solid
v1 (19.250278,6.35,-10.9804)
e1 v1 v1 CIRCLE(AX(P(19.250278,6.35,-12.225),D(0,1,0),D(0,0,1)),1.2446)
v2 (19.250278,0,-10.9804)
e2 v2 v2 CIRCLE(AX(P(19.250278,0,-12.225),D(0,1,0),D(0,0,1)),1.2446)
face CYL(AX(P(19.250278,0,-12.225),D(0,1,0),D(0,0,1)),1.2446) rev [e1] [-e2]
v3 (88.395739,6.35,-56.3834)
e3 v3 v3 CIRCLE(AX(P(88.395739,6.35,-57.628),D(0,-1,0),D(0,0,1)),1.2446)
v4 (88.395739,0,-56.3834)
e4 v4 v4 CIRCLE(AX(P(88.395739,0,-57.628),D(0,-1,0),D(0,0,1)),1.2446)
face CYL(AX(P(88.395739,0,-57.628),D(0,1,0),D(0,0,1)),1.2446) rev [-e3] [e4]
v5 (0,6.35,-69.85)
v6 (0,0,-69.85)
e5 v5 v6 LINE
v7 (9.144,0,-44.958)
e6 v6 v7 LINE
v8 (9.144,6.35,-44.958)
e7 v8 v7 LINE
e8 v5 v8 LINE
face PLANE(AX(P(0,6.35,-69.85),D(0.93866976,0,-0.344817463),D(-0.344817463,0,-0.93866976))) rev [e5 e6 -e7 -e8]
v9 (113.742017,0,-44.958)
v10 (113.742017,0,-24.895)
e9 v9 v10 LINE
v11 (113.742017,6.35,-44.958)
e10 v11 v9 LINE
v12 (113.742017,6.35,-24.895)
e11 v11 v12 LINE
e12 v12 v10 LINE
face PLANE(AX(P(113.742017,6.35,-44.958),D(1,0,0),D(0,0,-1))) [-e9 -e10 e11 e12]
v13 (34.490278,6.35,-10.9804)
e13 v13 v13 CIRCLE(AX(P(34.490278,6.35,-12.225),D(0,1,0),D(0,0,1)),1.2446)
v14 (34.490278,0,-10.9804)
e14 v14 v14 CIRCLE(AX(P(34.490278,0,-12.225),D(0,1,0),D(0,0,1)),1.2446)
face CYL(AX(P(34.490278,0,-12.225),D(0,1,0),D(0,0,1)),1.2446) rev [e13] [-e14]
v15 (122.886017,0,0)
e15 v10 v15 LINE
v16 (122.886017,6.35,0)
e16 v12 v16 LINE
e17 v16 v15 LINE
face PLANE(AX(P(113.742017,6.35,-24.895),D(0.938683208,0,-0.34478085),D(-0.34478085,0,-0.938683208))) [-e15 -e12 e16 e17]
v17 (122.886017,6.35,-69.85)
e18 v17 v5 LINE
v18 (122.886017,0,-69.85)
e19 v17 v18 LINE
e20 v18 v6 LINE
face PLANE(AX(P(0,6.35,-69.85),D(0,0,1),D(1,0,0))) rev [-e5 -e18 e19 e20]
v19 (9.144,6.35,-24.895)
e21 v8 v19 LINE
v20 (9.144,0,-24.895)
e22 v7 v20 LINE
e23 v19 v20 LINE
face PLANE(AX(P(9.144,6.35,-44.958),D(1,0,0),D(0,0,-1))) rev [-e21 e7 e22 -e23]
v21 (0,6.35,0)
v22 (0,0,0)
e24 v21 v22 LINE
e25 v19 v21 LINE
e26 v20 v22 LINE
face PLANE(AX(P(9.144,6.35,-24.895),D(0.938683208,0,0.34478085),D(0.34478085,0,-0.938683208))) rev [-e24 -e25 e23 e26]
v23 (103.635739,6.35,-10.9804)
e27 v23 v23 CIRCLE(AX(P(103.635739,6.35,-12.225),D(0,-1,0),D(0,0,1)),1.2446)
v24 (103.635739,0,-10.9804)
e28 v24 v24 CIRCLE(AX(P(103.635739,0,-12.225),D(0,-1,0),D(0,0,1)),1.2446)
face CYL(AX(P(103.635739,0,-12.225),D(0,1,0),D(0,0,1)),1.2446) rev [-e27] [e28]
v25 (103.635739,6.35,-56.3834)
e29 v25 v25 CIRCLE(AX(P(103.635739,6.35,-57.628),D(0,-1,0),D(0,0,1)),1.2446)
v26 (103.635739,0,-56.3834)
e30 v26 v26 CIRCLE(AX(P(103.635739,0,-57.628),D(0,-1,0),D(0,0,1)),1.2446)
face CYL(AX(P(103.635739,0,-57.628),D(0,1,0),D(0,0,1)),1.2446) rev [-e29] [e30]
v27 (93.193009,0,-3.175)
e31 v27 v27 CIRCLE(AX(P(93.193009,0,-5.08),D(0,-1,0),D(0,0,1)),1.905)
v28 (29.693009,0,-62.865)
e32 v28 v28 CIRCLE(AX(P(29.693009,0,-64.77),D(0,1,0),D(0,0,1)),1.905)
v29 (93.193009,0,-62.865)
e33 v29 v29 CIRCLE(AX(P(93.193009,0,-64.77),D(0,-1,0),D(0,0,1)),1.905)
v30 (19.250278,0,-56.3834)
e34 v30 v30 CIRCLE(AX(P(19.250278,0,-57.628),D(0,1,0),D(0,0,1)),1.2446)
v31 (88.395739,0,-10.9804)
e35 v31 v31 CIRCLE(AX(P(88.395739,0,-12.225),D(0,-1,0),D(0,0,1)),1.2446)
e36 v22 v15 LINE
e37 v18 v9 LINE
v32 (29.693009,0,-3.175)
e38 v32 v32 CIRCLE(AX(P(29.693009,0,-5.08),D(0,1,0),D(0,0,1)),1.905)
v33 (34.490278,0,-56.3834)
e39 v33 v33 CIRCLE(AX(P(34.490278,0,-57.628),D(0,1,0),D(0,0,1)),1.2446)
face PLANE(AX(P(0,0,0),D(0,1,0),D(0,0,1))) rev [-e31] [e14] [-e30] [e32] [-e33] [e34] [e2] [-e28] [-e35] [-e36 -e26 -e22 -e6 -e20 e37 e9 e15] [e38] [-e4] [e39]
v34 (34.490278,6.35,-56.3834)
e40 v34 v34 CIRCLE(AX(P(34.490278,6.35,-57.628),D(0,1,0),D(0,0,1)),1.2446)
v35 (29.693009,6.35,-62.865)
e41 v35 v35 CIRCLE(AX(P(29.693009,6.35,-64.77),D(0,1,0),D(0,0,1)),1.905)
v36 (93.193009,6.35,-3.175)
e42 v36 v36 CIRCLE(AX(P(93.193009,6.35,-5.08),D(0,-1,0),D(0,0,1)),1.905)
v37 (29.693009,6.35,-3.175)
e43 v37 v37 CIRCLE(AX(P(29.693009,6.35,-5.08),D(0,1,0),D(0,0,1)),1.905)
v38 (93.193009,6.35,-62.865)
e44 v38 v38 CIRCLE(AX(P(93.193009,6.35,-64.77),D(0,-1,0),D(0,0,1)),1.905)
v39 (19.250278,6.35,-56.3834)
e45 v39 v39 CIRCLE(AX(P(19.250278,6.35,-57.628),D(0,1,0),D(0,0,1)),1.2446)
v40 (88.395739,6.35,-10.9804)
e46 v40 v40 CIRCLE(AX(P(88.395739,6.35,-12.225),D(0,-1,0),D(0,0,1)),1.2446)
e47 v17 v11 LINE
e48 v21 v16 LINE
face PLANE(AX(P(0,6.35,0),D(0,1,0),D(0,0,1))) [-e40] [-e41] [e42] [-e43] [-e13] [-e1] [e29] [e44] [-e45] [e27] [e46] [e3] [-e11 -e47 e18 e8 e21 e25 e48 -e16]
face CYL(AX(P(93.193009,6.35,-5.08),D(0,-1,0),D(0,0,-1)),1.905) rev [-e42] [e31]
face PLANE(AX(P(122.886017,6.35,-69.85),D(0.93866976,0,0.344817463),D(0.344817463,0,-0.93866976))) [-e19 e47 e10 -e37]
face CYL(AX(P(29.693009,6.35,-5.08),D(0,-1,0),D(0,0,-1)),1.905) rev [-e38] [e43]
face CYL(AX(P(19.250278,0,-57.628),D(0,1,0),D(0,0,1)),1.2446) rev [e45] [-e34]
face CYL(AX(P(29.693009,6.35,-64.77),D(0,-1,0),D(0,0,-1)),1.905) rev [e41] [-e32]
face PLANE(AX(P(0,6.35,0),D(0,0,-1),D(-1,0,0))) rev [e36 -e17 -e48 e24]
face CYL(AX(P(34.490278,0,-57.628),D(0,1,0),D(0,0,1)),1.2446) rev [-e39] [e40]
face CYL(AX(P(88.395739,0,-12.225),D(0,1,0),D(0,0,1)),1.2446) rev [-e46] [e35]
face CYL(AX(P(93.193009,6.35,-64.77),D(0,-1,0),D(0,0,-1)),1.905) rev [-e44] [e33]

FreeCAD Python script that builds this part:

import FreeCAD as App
import Part
import Sketcher

V = App.Vector
Q = App.Units.Quantity

doc = App.newDocument("Part")
params = doc.addObject("Spreadsheet::Sheet", "Params")
for row, (alias, value) in enumerate([
    ("sketch1_diameter", "0.15 in"),
    ("sketch1_height", "2.75 in"),
    ("pad1_length", "0.25 in"),
    ("sketch2_diameter", "0.098 in"),
    ("pocket1_length", "0.25 in"),
], start=1):
    params.set(f"A{row}", alias)
    params.set(f"B{row}", "=" + value)
    params.setAlias(f"B{row}", alias)

body = doc.addObject("PartDesign::Body", "Body")

# Sketch on XZ plane
sketch1 = body.newObject("Sketcher::SketchObject", "Sketch")
sketch1.AttachmentSupport = (doc.getObject("XZ_Plane"), [""])
sketch1.MapMode = "FlatFace"
sketch1.addGeometry([
    Part.LineSegment(V(0, -69.8, 0), V(9.1, -45, 0)),  # 0
    Part.LineSegment(V(9.1, -45, 0), V(9.1, -24.9, 0)),  # 1
    Part.LineSegment(V(9.1, -24.9, 0), V(0, 0, 0)),  # 2
    Part.LineSegment(V(0, 0, 0), V(61.4, 0, 0)),  # 3
    Part.LineSegment(V(61.4, 0, 0), V(61.4, -69.8, 0)),  # 4
    Part.LineSegment(V(61.4, -69.8, 0), V(0, -69.8, 0)),  # 5
    Part.Circle(V(29.7, -5.1, 0), V(0, 0, 1), 1.9),  # 6
    Part.Circle(V(29.7, -64.8, 0), V(0, 0, 1), 1.9),  # 7
], False)
sketch1.addConstraint([
    Sketcher.Constraint("Coincident", 0, 2, 1, 1),
    Sketcher.Constraint("Coincident", 1, 2, 2, 1),
    Sketcher.Constraint("Coincident", 2, 2, 3, 1),
    Sketcher.Constraint("Coincident", 3, 2, 4, 1),
    Sketcher.Constraint("Coincident", 4, 2, 5, 1),
    Sketcher.Constraint("Coincident", 5, 2, 0, 1),
    Sketcher.Constraint("Vertical", 1),
    Sketcher.Constraint("Horizontal", 3),
    Sketcher.Constraint("Vertical", 4),
    Sketcher.Constraint("Horizontal", 5),
    Sketcher.Constraint("Coincident", 2, 2, -1, 1),
    Sketcher.Constraint("Equal", 6, 7),
    Sketcher.Constraint("PointOnObject", 5, 2, -2),
    Sketcher.Constraint("Vertical", 6, 3, 7, 3),
    Sketcher.Constraint("Diameter", 6, Q("0.15 in")),
    Sketcher.Constraint("DistanceY", 4, 2, 4, 1, Q("2.75 in")),
    Sketcher.Constraint("DistanceY", 6, 3, -1, 1, Q("0.2 in")),
    Sketcher.Constraint("DistanceY", 4, 2, 7, 3, Q("0.2 in")),
    Sketcher.Constraint("DistanceX", -1, 1, 0, 2, Q("0.36 in")),
    Sketcher.Constraint("DistanceY", 0, 2, -1, 1, Q("1.77 in")),
    Sketcher.Constraint("DistanceX", 6, 3, 3, 2, Q("1.25 in")),
    Sketcher.Constraint("DistanceY", 1, 1, 1, 2, Q("20.063 mm")),
    Sketcher.Constraint("DistanceX", 3, 1, 3, 2, Q("61.443009 mm")),
])
sketch1.setExpression("Constraints[14]", "Params.sketch1_diameter")
sketch1.setExpression("Constraints[15]", "Params.sketch1_height")
pad1 = body.newObject("PartDesign::Pad", "Pad")
pad1.Profile = sketch1
pad1.setExpression("Length", "Params.pad1_length")
pad1.Reversed = True

# Sketch on XZ plane
sketch2 = body.newObject("Sketcher::SketchObject", "Sketch001")
sketch2.AttachmentSupport = (doc.getObject("XZ_Plane"), [""])
sketch2.MapMode = "FlatFace"
sketch2.AttachmentOffset = App.Placement(V(0, 0, -0.25 * 25.4), App.Rotation())
sketch2.addGeometry([
    Part.Circle(V(34.5, -57.6, 0), V(0, 0, 1), 1.2),
    Part.Circle(V(19.3, -57.6, 0), V(0, 0, 1), 1.2),
    Part.Circle(V(34.5, -12.2, 0), V(0, 0, 1), 1.2),
    Part.Circle(V(19.3, -12.2, 0), V(0, 0, 1), 1.2),
], False)
sketch2.addConstraint([
    Sketcher.Constraint("Equal", 0, 1),
    Sketcher.Constraint("Equal", 1, 2),
    Sketcher.Constraint("Equal", 2, 3),
    Sketcher.Constraint("Horizontal", 0, 3, 1, 3),
    Sketcher.Constraint("Horizontal", 2, 3, 3, 3),
    Sketcher.Constraint("Vertical", 0, 3, 2, 3),
    Sketcher.Constraint("Vertical", 1, 3, 3, 3),
    Sketcher.Constraint("Diameter", 0, Q("0.098 in")),
    Sketcher.Constraint("DistanceX", 1, 3, 0, 3, Q("0.6 in")),
    Sketcher.Constraint("DistanceY", 0, 3, -1, 1, Q("57.628 mm")),
    Sketcher.Constraint("DistanceY", 2, 3, -1, 1, Q("12.225 mm")),
    Sketcher.Constraint("DistanceX", -1, 1, 0, 3, Q("34.490278 mm")),
])
sketch2.setExpression("Constraints[7]", "Params.sketch2_diameter")
pocket1 = body.newObject("PartDesign::Pocket", "Pocket")
pocket1.Profile = sketch2
pocket1.setExpression("Length", "Params.pocket1_length")
pocket1.Reversed = True
doc.recompute()

datumplane = body.newObject("PartDesign::Plane", "DatumPlane")
datumplane.AttachmentSupport = (doc.getObject("YZ_Plane"), [""])
datumplane.MapMode = "FlatFace"
datumplane.AttachmentOffset = App.Placement(V(0, 0, 61.443009), App.Rotation())
mirrored = body.newObject("PartDesign::Mirrored", "Mirrored")
mirrored.Originals = [pad1, pocket1]
mirrored.MirrorPlane = (datumplane, [""])
body.Tip = mirrored

doc.recompute()
